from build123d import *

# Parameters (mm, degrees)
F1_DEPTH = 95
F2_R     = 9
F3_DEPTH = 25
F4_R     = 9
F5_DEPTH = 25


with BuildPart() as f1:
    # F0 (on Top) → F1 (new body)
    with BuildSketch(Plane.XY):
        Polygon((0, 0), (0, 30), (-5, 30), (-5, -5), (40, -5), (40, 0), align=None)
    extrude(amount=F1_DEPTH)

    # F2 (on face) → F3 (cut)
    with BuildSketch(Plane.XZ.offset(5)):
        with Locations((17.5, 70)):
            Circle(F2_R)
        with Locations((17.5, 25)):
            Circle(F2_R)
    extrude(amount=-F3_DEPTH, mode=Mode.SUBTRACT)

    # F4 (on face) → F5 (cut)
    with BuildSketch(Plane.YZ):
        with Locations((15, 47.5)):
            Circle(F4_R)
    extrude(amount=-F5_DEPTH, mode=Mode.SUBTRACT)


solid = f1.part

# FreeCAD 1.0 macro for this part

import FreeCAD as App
import Part
import Sketcher
from FreeCAD import Vector
Q = App.Units.Quantity

doc = App.newDocument("Part")
body = doc.addObject("PartDesign::Body", "Body")

# Sketch on XY plane
sketch1 = body.newObject("Sketcher::SketchObject", "Sketch")
sketch1.AttachmentSupport = (doc.getObject("XY_Plane"), [""])
sketch1.MapMode = "FlatFace"
sketch1.addGeometry(Part.LineSegment(Vector(0, 0, 0), Vector(0, 30, 0)), False)
sketch1.addGeometry(Part.LineSegment(Vector(0, 30, 0), Vector(-5, 30, 0)), False)
sketch1.addGeometry(Part.LineSegment(Vector(-5, 30, 0), Vector(-5, -5, 0)), False)
sketch1.addGeometry(Part.LineSegment(Vector(-5, -5, 0), Vector(40, -5, 0)), False)
sketch1.addGeometry(Part.LineSegment(Vector(40, -5, 0), Vector(40, 0, 0)), False)
sketch1.addGeometry(Part.LineSegment(Vector(40, 0, 0), Vector(0, 0, 0)), False)
sketch1.addConstraint(Sketcher.Constraint("Coincident", 0, 2, 1, 1))
sketch1.addConstraint(Sketcher.Constraint("Coincident", 1, 2, 2, 1))
sketch1.addConstraint(Sketcher.Constraint("Coincident", 2, 2, 3, 1))
sketch1.addConstraint(Sketcher.Constraint("Coincident", 3, 2, 4, 1))
sketch1.addConstraint(Sketcher.Constraint("Coincident", 4, 2, 5, 1))
sketch1.addConstraint(Sketcher.Constraint("Coincident", 5, 2, 0, 1))
sketch1.addConstraint(Sketcher.Constraint("Vertical", 0))
sketch1.addConstraint(Sketcher.Constraint("Horizontal", 1))
sketch1.addConstraint(Sketcher.Constraint("Vertical", 2))
sketch1.addConstraint(Sketcher.Constraint("Horizontal", 3))
sketch1.addConstraint(Sketcher.Constraint("Vertical", 4))
sketch1.addConstraint(Sketcher.Constraint("Horizontal", 5))
sketch1.addConstraint(Sketcher.Constraint("Coincident", 5, 2, -1, 1))
sketch1.addConstraint(Sketcher.Constraint("Equal", 1, 4))
sketch1.addConstraint(Sketcher.Constraint("DistanceX", 1, 2, 1, 1, Q("5 mm")))
sketch1.addConstraint(Sketcher.Constraint("DistanceX", 3, 1, 3, 2, Q("45 mm")))
sketch1.addConstraint(Sketcher.Constraint("DistanceY", 0, 1, 0, 2, Q("30 mm")))
pad1 = body.newObject("PartDesign::Pad", "Pad")
pad1.Profile = sketch1
pad1.Length = 95

# Sketch on XZ plane
sketch2 = body.newObject("Sketcher::SketchObject", "Sketch001")
sketch2.AttachmentSupport = (doc.getObject("XZ_Plane"), [""])
sketch2.MapMode = "FlatFace"
sketch2.AttachmentOffset = App.Placement(Vector(0, 0, 5), App.Rotation())
sketch2.addGeometry(Part.Circle(Vector(18, 70, 0), Vector(0, 0, 1), 9), False)
sketch2.addGeometry(Part.Circle(Vector(18, 25, 0), Vector(0, 0, 1), 9), False)
sketch2.addConstraint(Sketcher.Constraint("Equal", 0, 1))
sketch2.addConstraint(Sketcher.Constraint("Vertical", 0, 3, 1, 3))
sketch2.addConstraint(Sketcher.Constraint("Diameter", 0, Q("18 mm")))
sketch2.addConstraint(Sketcher.Constraint("DistanceY", -1, 1, 0, 3, Q("70 mm")))
sketch2.addConstraint(Sketcher.Constraint("DistanceY", -1, 1, 1, 3, Q("25 mm")))
sketch2.addConstraint(Sketcher.Constraint("DistanceX", -1, 1, 0, 3, Q("17.5 mm")))
pocket1 = body.newObject("PartDesign::Pocket", "Pocket")
pocket1.Profile = sketch2
pocket1.Length = 25

# Sketch on YZ plane
sketch3 = body.newObject("Sketcher::SketchObject", "Sketch002")
sketch3.AttachmentSupport = (doc.getObject("YZ_Plane"), [""])
sketch3.MapMode = "FlatFace"
sketch3.addGeometry(Part.Circle(Vector(15, 48, 0), Vector(0, 0, 1), 9), False)
sketch3.addConstraint(Sketcher.Constraint("Diameter", 0, Q("18 mm")))
sketch3.addConstraint(Sketcher.Constraint("DistanceX", -1, 1, 0, 3, Q("15 mm")))
sketch3.addConstraint(Sketcher.Constraint("DistanceY", -1, 1, 0, 3, Q("47.5 mm")))
pocket2 = body.newObject("PartDesign::Pocket", "Pocket001")
pocket2.Profile = sketch3
pocket2.Length = 25

doc.recompute()
